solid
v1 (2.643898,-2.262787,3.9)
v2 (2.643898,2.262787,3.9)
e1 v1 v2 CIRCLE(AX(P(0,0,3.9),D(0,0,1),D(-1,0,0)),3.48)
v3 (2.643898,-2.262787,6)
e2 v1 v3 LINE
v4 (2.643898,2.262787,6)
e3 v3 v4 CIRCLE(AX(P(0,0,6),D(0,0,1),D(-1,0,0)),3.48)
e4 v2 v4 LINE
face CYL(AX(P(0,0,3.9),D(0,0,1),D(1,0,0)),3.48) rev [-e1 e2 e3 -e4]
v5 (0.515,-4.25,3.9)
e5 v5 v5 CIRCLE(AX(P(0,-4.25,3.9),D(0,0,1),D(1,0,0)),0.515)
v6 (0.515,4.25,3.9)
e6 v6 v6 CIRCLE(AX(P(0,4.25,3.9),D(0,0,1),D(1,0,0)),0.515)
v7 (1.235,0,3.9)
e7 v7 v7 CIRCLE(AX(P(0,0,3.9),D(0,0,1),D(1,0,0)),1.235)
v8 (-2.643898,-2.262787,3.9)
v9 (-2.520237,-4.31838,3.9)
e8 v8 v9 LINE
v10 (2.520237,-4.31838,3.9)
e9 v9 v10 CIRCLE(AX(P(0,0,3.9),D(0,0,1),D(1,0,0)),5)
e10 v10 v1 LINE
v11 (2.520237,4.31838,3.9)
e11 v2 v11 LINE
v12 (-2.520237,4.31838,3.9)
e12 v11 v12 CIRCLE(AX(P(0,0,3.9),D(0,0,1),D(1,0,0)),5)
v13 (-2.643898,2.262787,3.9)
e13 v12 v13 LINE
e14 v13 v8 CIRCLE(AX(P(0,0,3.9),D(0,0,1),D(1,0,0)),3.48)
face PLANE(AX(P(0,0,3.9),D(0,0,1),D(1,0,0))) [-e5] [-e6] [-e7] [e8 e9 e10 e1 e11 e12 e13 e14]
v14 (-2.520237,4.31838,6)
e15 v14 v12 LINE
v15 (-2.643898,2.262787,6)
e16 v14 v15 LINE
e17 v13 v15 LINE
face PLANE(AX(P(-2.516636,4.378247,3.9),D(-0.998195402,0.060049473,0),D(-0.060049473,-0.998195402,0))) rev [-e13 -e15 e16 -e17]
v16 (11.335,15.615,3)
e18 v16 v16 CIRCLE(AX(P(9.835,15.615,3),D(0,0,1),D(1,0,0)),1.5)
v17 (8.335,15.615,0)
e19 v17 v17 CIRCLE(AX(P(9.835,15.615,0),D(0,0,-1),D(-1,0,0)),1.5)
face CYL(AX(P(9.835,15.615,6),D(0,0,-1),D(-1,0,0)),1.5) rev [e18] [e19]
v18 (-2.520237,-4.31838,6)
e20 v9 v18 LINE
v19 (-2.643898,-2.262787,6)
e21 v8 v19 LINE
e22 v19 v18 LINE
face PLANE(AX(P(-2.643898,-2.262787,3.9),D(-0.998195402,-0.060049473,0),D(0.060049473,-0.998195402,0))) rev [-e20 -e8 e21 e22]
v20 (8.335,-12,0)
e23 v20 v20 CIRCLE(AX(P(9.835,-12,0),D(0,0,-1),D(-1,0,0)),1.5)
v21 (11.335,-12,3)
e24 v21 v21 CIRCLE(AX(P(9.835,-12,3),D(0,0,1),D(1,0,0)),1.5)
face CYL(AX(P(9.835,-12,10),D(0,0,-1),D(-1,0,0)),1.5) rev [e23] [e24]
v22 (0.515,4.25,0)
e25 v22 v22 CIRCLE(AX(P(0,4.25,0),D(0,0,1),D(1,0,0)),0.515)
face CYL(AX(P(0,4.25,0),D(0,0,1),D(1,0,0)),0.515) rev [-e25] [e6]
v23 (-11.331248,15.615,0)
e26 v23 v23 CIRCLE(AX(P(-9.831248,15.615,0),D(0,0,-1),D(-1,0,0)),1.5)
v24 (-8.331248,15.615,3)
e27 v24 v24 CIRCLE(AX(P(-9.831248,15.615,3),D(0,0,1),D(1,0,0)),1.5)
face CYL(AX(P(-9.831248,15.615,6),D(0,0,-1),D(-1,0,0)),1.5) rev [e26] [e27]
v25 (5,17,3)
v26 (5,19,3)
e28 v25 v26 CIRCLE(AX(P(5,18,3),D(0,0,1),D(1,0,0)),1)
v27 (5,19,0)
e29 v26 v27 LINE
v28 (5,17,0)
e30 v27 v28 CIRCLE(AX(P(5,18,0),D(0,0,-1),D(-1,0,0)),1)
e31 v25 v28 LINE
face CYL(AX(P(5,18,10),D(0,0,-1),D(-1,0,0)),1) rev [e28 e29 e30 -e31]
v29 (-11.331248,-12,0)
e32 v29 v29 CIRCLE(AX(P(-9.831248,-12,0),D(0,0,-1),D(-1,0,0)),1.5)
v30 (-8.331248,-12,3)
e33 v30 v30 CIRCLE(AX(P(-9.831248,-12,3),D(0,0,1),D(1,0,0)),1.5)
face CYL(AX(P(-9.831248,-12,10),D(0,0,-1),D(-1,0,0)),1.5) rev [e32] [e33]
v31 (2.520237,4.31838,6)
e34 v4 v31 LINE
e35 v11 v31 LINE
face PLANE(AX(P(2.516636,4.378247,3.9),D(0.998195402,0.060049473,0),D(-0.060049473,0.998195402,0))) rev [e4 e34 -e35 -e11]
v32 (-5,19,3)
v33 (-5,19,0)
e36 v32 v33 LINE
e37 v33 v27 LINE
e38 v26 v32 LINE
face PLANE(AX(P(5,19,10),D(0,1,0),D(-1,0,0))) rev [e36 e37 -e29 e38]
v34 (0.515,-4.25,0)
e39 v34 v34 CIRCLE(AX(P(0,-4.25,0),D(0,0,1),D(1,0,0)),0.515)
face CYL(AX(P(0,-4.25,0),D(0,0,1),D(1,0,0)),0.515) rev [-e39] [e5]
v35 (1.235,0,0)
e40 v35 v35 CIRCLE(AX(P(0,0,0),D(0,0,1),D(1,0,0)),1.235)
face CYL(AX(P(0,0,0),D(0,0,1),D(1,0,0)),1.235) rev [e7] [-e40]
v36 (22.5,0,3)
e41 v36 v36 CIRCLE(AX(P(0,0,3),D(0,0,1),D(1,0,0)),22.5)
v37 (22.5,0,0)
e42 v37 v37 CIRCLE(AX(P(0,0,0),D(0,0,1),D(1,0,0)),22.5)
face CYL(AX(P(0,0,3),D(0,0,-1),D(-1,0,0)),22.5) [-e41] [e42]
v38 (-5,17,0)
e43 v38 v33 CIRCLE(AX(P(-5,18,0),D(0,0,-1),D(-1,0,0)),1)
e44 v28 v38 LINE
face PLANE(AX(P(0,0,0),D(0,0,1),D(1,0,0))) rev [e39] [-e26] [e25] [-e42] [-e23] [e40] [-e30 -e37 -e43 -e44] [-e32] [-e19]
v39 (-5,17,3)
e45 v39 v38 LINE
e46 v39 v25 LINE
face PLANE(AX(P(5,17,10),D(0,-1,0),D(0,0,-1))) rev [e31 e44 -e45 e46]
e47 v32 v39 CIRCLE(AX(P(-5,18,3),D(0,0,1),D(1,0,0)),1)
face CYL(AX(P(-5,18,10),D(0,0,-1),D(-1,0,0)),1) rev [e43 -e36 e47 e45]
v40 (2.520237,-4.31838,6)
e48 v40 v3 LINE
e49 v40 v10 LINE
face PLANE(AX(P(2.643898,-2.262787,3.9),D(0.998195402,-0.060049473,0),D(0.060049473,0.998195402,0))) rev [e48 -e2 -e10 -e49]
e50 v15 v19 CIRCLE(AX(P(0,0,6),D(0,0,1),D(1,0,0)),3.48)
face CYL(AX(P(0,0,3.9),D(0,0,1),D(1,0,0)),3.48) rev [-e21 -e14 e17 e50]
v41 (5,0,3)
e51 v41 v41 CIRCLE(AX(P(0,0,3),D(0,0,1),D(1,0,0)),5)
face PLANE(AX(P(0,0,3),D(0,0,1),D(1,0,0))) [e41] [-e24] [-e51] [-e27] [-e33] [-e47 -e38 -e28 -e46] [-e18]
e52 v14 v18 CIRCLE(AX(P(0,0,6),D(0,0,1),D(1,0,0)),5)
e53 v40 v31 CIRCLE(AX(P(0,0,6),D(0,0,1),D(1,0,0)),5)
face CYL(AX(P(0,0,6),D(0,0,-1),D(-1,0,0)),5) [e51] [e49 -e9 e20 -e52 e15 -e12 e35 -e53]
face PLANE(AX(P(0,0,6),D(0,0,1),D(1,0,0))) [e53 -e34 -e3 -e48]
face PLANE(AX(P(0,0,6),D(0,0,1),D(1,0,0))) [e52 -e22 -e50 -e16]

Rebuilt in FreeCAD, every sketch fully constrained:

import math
import FreeCAD as App
import Part
import Sketcher
from FreeCAD import Vector

doc = App.newDocument("Part")
body = doc.addObject("PartDesign::Body", "Body")

# Sketch on XY plane
sketch1 = body.newObject("Sketcher::SketchObject", "Sketch")
sketch1.AttachmentSupport = (doc.getObject("XY_Plane"), [""])
sketch1.MapMode = "FlatFace"
sketch1.addGeometry(Part.Circle(Vector(0, 0, 0), Vector(0, 0, 1), 22), False)
sketch1.addConstraint(Sketcher.Constraint("Coincident", 0, 3, -1, 1))
sketch1.addConstraint(Sketcher.Constraint("Diameter", 0, 45.0))
pad1 = body.newObject("PartDesign::Pad", "Pad")
pad1.Profile = sketch1
pad1.Length = 3

# Sketch on XY plane
sketch2 = body.newObject("Sketcher::SketchObject", "Sketch001")
sketch2.AttachmentSupport = (doc.getObject("XY_Plane"), [""])
sketch2.MapMode = "FlatFace"
sketch2.AttachmentOffset = App.Placement(Vector(0, 0, 3), App.Rotation())
sketch2.addGeometry(Part.Circle(Vector(0, 0, 0), Vector(0, 0, 1), 5), False)
sketch2.addConstraint(Sketcher.Constraint("Coincident", 0, 3, -1, 1))
sketch2.addConstraint(Sketcher.Constraint("Diameter", 0, 10.0))
pad2 = body.newObject("PartDesign::Pad", "Pad001")
pad2.Profile = sketch2
pad2.Length = 3

# Sketch on XY plane
sketch3 = body.newObject("Sketcher::SketchObject", "Sketch002")
sketch3.AttachmentSupport = (doc.getObject("XY_Plane"), [""])
sketch3.MapMode = "FlatFace"
sketch3.addGeometry(Part.LineSegment(Vector(-5, 19, 0), Vector(5, 19, 0)), False)
sketch3.addGeometry(Part.ArcOfCircle(Part.Circle(Vector(5, 18, 0), Vector(0, 0, 1), 1), math.radians(-90), math.radians(90)), False)
sketch3.addGeometry(Part.LineSegment(Vector(5, 17, 0), Vector(-5, 17, 0)), False)
sketch3.addGeometry(Part.ArcOfCircle(Part.Circle(Vector(-5, 18, 0), Vector(0, 0, 1), 1), math.radians(90), math.radians(270)), False)
sketch3.addConstraint(Sketcher.Constraint("Tangent", 0, 2, 1, 2))
sketch3.addConstraint(Sketcher.Constraint("Tangent", 1, 1, 2, 1))
sketch3.addConstraint(Sketcher.Constraint("Tangent", 2, 2, 3, 2))
sketch3.addConstraint(Sketcher.Constraint("Tangent", 3, 1, 0, 1))
sketch3.addConstraint(Sketcher.Constraint("Horizontal", 0))
sketch3.addConstraint(Sketcher.Constraint("Horizontal", 2))
sketch3.addConstraint(Sketcher.Constraint("Radius", 1, 1.0))
sketch3.addConstraint(Sketcher.Constraint("DistanceX", 0, 1, 0, 2, 10.0))
sketch3.addConstraint(Sketcher.Constraint("DistanceX", -1, 1, 1, 3, 5.0))
sketch3.addConstraint(Sketcher.Constraint("DistanceY", -1, 1, 1, 3, 18.0))
pocket1 = body.newObject("PartDesign::Pocket", "Pocket")
pocket1.Profile = sketch3
pocket1.Length = 10
pocket1.Reversed = True

# Sketch on XY plane
sketch4 = body.newObject("Sketcher::SketchObject", "Sketch003")
sketch4.AttachmentSupport = (doc.getObject("XY_Plane"), [""])
sketch4.MapMode = "FlatFace"
sketch4.addGeometry(Part.Circle(Vector(9.8, -12, 0), Vector(0, 0, 1), 1.5), False)
sketch4.addGeometry(Part.Circle(Vector(-9.8, -12, 0), Vector(0, 0, 1), 1.5), False)
sketch4.addConstraint(Sketcher.Constraint("Equal", 0, 1))
sketch4.addConstraint(Sketcher.Constraint("Horizontal", 0, 3, 1, 3))
sketch4.addConstraint(Sketcher.Constraint("Diameter", 0, 3.0))
sketch4.addConstraint(Sketcher.Constraint("DistanceY", 0, 3, -1, 1, 12.0))
sketch4.addConstraint(Sketcher.Constraint("DistanceX", -1, 1, 0, 3, 9.835))
sketch4.addConstraint(Sketcher.Constraint("DistanceX", 1, 3, -1, 1, 9.831248))
pocket2 = body.newObject("PartDesign::Pocket", "Pocket001")
pocket2.Profile = sketch4
pocket2.Length = 10
pocket2.Reversed = True

# Sketch on XY plane
sketch5 = body.newObject("Sketcher::SketchObject", "Sketch004")
sketch5.AttachmentSupport = (doc.getObject("XY_Plane"), [""])
sketch5.MapMode = "FlatFace"
sketch5.AttachmentOffset = App.Placement(Vector(0, 0, 6), App.Rotation())
sketch5.addGeometry(Part.LineSegment(Vector(2.6, 2.3, 0), Vector(2.5, 4.4, 0)), False)
sketch5.addGeometry(Part.ArcOfCircle(Part.Circle(Vector(0, 0, 0), Vector(0, 0, 1), 5.1), math.radians(60), math.radians(120)), False)
sketch5.addGeometry(Part.LineSegment(Vector(-2.5, 4.4, 0), Vector(-2.6, 2.3, 0)), False)
sketch5.addGeometry(Part.ArcOfCircle(Part.Circle(Vector(0, 0, 0), Vector(0, 0, 1), 3.5), math.radians(139), math.radians(221)), False)
sketch5.addGeometry(Part.LineSegment(Vector(-2.6, -2.3, 0), Vector(-2.5, -4.4, 0)), False)
sketch5.addGeometry(Part.ArcOfCircle(Part.Circle(Vector(0, 0, 0), Vector(0, 0, 1), 5.1), math.radians(-120), math.radians(-60)), False)
sketch5.addGeometry(Part.LineSegment(Vector(2.5, -4.4, 0), Vector(2.6, -2.3, 0)), False)
sketch5.addGeometry(Part.ArcOfCircle(Part.Circle(Vector(0, 0, 0), Vector(0, 0, 1), 3.5), math.radians(-41), math.radians(41)), False)
sketch5.addConstraint(Sketcher.Constraint("Coincident", 0, 2, 1, 1))
sketch5.addConstraint(Sketcher.Constraint("Coincident", 1, 2, 2, 1))
sketch5.addConstraint(Sketcher.Constraint("Coincident", 2, 2, 3, 1))
sketch5.addConstraint(Sketcher.Constraint("Coincident", 3, 2, 4, 1))
sketch5.addConstraint(Sketcher.Constraint("Coincident", 4, 2, 5, 1))
sketch5.addConstraint(Sketcher.Constraint("Coincident", 5, 2, 6, 1))
sketch5.addConstraint(Sketcher.Constraint("Coincident", 6, 2, 7, 1))
sketch5.addConstraint(Sketcher.Constraint("Coincident", 7, 2, 0, 1))
sketch5.addConstraint(Sketcher.Constraint("Coincident", 1, 3, -1, 1))
sketch5.addConstraint(Sketcher.Constraint("Coincident", 3, 3, -1, 1))
sketch5.addConstraint(Sketcher.Constraint("Coincident", 5, 3, -1, 1))
sketch5.addConstraint(Sketcher.Constraint("Coincident", 7, 3, -1, 1))
sketch5.addConstraint(Sketcher.Constraint("Equal", 1, 5))
sketch5.addConstraint(Sketcher.Constraint("Equal", 3, 7))
sketch5.addConstraint(Sketcher.Constraint("Parallel", 0, 4))
sketch5.addConstraint(Sketcher.Constraint("Parallel", 2, 6))
sketch5.addConstraint(Sketcher.Constraint("Horizontal", 0, 2, 1, 2))
sketch5.addConstraint(Sketcher.Constraint("Horizontal", 4, 2, 5, 2))
sketch5.addConstraint(Sketcher.Constraint("Horizontal", 3, 2, 6, 2))
sketch5.addConstraint(Sketcher.Constraint("Vertical", 2, 2, 3, 2))
sketch5.addConstraint(Sketcher.Constraint("Radius", 1, 5.05))
sketch5.addConstraint(Sketcher.Constraint("Radius", 3, 3.48))
sketch5.addConstraint(Sketcher.Constraint("DistanceX", 1, 2, 0, 2, 5.033272))
sketch5.addConstraint(Sketcher.Constraint("DistanceX", 2, 2, 1, 2, 0.127262))
pocket3 = body.newObject("PartDesign::Pocket", "Pocket002")
pocket3.Profile = sketch5
pocket3.Length = 2.1

# Sketch on XY plane
sketch6 = body.newObject("Sketcher::SketchObject", "Sketch005")
sketch6.AttachmentSupport = (doc.getObject("XY_Plane"), [""])
sketch6.MapMode = "FlatFace"
sketch6.AttachmentOffset = App.Placement(Vector(0, 0, 3.9), App.Rotation())
sketch6.addGeometry(Part.Circle(Vector(0, 4.2, 0), Vector(0, 0, 1), 0.5), False)
sketch6.addGeometry(Part.Circle(Vector(0, 0, 0), Vector(0, 0, 1), 1.2), False)
sketch6.addGeometry(Part.Circle(Vector(0, -4.2, 0), Vector(0, 0, 1), 0.5), False)
sketch6.addConstraint(Sketcher.Constraint("Coincident", 1, 3, -1, 1))
sketch6.addConstraint(Sketcher.Constraint("Equal", 0, 2))
sketch6.addConstraint(Sketcher.Constraint("Symmetric", 0, 3, 2, 3, -1, 1))
sketch6.addConstraint(Sketcher.Constraint("PointOnObject", 0, 3, -2))
sketch6.addConstraint(Sketcher.Constraint("Diameter", 0, 1.03))
sketch6.addConstraint(Sketcher.Constraint("Diameter", 1, 2.47))
sketch6.addConstraint(Sketcher.Constraint("DistanceY", 2, 3, 0, 3, 8.5))
pocket4 = body.newObject("PartDesign::Pocket", "Pocket003")
pocket4.Profile = sketch6
pocket4.Type = "ThroughAll"

# Sketch on XY plane
sketch7 = body.newObject("Sketcher::SketchObject", "Sketch006")
sketch7.AttachmentSupport = (doc.getObject("XY_Plane"), [""])
sketch7.MapMode = "FlatFace"
sketch7.addGeometry(Part.Circle(Vector(9.8, 15.6, 0), Vector(0, 0, 1), 1.5), False)
sketch7.addGeometry(Part.Circle(Vector(-9.8, 15.6, 0), Vector(0, 0, 1), 1.5), False)
sketch7.addConstraint(Sketcher.Constraint("Equal", 0, 1))
sketch7.addConstraint(Sketcher.Constraint("Horizontal", 0, 3, 1, 3))
sketch7.addConstraint(Sketcher.Constraint("Diameter", 0, 3.0))
sketch7.addConstraint(Sketcher.Constraint("DistanceX", -1, 1, 0, 3, 9.835))
sketch7.addConstraint(Sketcher.Constraint("DistanceY", -1, 1, 0, 3, 15.615))
sketch7.addConstraint(Sketcher.Constraint("DistanceX", 1, 3, -1, 1, 9.831248))
pocket5 = body.newObject("PartDesign::Pocket", "Pocket004")
pocket5.Profile = sketch7
pocket5.Type = "ThroughAll"
pocket5.Reversed = True

doc.recompute()
